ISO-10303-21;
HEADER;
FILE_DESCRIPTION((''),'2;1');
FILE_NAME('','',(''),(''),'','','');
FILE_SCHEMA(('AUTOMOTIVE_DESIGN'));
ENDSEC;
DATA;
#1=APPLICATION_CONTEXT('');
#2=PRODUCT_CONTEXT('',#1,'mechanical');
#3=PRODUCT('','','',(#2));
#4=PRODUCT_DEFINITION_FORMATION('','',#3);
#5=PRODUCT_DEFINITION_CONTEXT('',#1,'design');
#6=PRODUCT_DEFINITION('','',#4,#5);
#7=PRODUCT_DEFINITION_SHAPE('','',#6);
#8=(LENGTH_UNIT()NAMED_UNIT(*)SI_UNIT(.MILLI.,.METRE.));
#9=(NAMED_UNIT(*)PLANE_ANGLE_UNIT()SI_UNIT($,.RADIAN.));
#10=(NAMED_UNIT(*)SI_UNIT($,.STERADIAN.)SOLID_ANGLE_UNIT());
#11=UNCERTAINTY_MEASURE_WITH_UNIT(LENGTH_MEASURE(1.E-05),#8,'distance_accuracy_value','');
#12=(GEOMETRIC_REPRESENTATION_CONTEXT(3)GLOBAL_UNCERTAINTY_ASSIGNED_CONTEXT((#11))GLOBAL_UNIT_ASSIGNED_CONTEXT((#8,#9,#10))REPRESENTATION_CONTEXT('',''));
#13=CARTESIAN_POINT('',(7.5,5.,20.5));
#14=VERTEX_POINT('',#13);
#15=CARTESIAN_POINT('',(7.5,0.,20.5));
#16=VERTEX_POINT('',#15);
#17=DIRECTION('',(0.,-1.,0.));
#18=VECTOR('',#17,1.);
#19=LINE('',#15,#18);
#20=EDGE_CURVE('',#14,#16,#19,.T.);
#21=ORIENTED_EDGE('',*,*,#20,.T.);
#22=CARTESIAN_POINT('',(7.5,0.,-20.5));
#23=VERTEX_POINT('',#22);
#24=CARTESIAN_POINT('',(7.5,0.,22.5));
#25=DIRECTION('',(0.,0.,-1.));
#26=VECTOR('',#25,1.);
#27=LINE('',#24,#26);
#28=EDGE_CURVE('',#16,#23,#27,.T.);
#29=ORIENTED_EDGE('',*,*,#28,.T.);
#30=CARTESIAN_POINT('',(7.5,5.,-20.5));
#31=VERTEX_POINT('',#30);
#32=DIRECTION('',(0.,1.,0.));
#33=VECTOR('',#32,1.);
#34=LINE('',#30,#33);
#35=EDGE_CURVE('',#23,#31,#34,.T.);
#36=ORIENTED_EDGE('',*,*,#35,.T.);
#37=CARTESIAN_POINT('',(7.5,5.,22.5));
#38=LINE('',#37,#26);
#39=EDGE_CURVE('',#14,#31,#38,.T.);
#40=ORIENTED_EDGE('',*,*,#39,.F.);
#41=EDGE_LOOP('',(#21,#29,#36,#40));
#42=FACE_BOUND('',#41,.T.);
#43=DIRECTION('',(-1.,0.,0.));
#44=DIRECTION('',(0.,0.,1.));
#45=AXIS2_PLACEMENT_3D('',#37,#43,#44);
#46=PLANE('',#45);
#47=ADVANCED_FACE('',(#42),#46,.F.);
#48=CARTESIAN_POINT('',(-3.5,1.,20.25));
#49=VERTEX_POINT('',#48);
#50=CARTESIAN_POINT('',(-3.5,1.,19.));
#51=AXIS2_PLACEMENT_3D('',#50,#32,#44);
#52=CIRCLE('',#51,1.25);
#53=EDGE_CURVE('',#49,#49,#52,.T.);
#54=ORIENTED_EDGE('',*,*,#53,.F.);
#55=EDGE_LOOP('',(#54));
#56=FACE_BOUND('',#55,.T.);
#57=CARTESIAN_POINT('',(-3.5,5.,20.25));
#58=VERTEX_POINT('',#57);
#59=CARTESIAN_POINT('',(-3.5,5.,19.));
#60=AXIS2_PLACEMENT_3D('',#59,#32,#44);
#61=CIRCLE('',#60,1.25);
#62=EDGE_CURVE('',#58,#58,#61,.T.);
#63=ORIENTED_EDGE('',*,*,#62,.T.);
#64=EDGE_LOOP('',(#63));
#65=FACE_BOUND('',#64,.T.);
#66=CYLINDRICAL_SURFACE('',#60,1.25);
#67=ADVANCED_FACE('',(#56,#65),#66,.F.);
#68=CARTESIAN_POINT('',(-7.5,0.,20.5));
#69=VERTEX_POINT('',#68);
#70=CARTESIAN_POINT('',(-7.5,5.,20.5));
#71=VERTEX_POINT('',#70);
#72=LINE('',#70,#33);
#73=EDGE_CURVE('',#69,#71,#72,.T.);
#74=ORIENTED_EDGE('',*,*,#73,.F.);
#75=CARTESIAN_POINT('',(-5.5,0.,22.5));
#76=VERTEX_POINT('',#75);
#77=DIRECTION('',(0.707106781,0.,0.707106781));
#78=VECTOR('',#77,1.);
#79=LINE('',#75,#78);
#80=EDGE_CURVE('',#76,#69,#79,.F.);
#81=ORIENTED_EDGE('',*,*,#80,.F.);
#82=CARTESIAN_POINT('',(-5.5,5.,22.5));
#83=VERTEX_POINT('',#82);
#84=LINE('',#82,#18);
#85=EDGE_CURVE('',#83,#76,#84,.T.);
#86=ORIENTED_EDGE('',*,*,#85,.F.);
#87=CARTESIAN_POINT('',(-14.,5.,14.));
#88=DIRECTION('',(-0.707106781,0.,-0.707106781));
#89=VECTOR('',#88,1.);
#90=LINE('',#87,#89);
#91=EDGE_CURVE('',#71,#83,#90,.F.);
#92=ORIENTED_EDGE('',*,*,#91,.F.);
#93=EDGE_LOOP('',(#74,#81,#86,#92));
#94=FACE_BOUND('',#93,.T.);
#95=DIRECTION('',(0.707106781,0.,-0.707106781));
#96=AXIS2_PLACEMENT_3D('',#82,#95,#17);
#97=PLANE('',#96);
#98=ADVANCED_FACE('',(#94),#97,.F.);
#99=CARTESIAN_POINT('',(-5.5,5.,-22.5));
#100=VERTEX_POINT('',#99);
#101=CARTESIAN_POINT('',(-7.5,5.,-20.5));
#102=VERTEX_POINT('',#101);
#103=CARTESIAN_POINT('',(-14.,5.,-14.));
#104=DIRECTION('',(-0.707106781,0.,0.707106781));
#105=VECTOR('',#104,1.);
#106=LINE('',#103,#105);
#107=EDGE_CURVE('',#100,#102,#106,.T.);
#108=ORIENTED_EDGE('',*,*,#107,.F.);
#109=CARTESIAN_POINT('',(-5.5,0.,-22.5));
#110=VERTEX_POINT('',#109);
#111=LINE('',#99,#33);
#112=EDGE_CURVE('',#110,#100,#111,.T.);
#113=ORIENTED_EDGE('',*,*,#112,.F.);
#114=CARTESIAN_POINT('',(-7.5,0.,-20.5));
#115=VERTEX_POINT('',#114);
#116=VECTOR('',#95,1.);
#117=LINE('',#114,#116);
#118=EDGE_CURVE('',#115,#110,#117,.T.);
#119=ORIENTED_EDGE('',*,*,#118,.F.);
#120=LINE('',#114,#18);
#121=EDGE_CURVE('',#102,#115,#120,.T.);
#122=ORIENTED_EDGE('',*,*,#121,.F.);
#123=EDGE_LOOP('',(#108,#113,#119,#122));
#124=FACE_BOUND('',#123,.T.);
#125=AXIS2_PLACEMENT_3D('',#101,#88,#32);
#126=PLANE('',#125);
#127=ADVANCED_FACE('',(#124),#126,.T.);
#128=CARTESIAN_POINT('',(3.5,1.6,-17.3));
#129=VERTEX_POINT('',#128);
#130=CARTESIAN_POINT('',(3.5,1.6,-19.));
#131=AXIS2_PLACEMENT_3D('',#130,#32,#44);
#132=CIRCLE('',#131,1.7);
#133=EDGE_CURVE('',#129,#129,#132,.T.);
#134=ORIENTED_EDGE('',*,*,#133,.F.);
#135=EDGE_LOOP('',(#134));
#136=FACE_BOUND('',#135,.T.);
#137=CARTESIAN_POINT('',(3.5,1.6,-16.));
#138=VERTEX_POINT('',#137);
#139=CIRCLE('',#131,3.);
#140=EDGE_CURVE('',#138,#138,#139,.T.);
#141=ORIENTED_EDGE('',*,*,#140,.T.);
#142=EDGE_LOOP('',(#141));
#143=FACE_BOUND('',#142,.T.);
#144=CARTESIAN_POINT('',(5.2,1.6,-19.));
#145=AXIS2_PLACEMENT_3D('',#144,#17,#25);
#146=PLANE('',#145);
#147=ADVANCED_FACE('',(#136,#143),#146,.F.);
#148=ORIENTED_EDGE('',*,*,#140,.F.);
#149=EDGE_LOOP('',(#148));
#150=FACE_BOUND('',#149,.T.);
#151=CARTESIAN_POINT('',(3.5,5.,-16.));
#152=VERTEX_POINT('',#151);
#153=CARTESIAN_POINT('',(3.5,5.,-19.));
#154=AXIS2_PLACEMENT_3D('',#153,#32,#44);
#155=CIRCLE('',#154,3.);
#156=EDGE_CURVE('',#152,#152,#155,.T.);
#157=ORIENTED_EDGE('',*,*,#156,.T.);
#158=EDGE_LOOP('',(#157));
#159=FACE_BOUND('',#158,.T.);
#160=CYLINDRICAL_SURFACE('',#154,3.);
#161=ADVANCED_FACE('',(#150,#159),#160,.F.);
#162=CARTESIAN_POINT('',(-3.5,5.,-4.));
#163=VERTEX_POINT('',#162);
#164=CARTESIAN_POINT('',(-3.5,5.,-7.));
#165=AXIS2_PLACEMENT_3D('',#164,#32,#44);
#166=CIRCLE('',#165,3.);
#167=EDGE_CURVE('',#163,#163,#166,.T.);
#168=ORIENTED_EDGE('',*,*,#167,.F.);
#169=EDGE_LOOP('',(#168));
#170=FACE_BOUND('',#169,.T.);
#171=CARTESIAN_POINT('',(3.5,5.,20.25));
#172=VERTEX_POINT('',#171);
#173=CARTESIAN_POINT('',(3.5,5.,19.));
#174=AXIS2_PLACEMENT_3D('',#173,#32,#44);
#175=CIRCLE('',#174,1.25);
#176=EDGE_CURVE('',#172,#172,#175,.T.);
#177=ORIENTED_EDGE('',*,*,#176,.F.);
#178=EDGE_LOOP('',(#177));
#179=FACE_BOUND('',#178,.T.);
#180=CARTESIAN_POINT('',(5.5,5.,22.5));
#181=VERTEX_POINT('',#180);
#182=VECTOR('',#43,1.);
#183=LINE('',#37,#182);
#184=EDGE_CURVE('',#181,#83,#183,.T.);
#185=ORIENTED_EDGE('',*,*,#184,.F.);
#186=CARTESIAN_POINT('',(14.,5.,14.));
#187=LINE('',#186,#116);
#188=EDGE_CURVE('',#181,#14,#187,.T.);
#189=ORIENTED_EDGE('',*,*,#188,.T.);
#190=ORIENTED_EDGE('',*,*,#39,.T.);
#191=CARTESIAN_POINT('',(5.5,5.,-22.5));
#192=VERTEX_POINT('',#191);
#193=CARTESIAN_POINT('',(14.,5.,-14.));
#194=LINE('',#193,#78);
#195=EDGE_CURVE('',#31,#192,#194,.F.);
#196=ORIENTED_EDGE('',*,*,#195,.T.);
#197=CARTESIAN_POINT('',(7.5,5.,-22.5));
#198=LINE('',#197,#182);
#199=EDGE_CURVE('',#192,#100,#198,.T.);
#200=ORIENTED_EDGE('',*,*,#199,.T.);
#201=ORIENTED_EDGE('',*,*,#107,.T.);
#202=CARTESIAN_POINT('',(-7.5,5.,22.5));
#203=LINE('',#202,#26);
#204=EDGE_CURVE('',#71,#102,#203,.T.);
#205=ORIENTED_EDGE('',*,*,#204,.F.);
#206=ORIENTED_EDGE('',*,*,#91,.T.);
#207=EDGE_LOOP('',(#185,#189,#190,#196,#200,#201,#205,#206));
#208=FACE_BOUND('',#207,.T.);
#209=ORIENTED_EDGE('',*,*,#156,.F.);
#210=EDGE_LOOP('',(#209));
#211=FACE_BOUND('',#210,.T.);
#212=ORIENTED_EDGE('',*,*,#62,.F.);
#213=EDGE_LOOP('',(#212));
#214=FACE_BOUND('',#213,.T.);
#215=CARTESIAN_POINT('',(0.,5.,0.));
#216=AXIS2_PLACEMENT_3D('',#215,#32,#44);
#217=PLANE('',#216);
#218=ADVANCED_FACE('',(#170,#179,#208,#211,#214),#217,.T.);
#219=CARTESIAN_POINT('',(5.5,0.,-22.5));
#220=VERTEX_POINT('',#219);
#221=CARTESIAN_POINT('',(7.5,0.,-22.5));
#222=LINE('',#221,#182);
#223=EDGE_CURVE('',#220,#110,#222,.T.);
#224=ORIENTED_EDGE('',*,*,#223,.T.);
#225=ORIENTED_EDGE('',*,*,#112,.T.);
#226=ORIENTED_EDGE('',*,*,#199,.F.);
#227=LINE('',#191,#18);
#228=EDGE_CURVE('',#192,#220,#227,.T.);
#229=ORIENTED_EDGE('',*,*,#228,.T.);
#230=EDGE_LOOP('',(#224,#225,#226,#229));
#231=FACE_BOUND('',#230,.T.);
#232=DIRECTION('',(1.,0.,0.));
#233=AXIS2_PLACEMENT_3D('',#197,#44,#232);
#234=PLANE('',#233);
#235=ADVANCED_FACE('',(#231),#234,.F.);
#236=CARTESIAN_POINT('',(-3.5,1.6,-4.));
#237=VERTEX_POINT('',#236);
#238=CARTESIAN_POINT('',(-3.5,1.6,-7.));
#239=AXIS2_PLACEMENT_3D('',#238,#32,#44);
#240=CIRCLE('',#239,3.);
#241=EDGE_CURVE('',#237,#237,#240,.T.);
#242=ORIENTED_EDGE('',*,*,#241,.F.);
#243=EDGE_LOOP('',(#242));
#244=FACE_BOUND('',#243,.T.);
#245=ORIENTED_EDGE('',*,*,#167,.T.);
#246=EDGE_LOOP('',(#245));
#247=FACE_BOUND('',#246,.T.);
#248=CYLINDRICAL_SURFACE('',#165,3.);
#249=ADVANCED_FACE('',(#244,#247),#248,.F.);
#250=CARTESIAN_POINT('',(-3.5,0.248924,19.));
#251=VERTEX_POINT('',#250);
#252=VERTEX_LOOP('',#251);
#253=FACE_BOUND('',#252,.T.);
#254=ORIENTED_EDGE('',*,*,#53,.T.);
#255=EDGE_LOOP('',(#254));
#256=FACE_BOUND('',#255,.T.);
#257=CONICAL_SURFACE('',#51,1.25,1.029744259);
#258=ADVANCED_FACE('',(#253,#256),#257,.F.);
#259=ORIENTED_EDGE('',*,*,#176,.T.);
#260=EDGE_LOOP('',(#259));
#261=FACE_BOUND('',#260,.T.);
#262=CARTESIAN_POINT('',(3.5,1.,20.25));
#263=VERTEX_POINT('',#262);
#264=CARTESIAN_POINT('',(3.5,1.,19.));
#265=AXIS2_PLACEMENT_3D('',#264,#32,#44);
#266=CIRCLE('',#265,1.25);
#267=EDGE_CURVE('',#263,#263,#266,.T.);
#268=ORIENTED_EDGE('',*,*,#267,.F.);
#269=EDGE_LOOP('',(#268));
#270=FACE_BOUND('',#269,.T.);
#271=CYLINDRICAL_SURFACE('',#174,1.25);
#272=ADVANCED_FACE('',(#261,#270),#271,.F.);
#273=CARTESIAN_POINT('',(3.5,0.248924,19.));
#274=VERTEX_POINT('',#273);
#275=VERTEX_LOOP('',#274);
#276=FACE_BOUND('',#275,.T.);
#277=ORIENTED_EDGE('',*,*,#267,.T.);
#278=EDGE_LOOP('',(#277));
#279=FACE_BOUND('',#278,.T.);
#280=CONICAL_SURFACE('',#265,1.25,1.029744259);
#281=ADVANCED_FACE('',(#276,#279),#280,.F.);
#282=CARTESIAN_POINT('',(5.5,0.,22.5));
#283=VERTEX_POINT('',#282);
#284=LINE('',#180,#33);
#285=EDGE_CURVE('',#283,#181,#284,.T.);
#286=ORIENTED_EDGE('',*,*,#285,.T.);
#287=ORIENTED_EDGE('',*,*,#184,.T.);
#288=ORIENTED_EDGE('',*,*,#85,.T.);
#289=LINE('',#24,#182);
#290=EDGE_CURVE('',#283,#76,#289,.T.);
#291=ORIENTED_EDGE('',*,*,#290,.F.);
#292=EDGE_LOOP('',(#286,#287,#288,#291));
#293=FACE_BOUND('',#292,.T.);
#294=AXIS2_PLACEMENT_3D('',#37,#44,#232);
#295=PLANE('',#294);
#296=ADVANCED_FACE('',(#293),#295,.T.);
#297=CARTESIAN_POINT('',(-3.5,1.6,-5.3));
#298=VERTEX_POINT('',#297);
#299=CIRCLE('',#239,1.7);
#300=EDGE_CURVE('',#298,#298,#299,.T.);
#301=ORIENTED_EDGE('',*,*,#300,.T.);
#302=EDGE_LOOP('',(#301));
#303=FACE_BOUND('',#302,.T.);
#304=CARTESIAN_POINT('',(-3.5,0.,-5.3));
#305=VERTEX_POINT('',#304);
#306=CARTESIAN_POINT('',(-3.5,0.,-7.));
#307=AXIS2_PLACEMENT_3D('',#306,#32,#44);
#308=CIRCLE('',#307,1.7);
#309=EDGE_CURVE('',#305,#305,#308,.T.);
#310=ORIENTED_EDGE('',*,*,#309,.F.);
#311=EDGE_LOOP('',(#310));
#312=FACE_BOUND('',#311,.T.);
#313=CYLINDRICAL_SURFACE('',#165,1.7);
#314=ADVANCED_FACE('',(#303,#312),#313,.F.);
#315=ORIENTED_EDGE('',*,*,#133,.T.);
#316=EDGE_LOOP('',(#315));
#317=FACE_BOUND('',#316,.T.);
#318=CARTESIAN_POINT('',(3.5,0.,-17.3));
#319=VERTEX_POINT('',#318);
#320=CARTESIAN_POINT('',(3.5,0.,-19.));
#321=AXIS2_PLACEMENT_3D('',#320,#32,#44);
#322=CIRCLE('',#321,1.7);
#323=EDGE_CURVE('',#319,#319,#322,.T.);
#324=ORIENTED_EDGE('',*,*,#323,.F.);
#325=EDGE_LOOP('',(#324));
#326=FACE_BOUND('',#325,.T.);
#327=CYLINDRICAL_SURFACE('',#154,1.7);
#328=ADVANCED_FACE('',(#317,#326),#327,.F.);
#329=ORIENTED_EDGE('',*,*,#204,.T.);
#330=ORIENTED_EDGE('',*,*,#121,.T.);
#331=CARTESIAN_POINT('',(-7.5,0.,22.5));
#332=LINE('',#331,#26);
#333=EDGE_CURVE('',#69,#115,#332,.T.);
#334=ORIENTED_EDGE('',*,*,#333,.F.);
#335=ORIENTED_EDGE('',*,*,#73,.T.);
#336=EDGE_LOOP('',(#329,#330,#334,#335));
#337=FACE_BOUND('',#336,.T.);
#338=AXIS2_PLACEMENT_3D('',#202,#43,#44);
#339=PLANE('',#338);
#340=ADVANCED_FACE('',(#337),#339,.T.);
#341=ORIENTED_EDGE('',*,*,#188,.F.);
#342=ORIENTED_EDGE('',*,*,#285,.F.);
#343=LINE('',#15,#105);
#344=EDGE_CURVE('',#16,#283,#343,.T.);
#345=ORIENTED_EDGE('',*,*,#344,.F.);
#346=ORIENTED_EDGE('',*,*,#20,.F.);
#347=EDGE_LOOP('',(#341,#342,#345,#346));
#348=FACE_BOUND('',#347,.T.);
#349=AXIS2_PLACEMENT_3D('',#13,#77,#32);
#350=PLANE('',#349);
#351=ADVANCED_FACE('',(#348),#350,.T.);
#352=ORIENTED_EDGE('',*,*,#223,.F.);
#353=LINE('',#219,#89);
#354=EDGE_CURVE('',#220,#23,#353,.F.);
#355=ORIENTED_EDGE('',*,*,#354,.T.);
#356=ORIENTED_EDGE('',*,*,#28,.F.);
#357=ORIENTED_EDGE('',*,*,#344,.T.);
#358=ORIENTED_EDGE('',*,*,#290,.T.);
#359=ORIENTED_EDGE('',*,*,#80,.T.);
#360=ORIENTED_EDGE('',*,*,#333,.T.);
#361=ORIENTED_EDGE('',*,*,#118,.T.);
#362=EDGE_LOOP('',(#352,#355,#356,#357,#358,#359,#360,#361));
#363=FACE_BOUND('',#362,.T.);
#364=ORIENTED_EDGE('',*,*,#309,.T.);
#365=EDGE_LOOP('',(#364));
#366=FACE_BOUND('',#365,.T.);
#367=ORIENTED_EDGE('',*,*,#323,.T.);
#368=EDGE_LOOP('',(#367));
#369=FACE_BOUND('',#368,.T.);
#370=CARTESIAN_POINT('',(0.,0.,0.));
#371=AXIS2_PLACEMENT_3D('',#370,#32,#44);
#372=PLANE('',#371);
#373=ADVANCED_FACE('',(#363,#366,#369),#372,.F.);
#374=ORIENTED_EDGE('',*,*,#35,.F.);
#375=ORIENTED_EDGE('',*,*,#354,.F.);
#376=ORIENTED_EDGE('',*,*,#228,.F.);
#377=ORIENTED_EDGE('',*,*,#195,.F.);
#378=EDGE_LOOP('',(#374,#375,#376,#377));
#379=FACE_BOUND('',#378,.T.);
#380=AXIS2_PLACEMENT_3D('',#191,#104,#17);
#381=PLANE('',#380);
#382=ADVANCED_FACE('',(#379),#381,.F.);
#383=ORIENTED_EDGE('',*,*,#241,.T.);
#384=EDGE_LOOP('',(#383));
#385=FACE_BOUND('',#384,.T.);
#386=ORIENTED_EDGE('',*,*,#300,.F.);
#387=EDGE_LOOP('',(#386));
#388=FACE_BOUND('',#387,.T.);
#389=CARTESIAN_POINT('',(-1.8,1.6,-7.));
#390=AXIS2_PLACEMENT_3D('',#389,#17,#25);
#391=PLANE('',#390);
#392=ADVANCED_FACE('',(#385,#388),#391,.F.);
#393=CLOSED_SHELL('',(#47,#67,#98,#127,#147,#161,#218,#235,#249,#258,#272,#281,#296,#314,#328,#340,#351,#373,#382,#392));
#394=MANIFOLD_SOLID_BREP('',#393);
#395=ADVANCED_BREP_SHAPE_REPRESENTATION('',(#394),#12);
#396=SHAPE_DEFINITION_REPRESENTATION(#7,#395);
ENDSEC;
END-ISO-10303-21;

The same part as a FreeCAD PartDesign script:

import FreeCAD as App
import Part
import Sketcher
from FreeCAD import Vector
Q = App.Units.Quantity


def edges_at(feature, points):
    """Names of the edges that pass closest to the given points."""
    edges = feature.Shape.Edges
    near = lambda p: min(range(len(edges)), key=lambda i: edges[i].distToShape(Part.Vertex(*p))[0])
    return sorted({f"Edge{near(p) + 1}" for p in points})


def add_polygon(sketch, points):
    """Adds a closed chain of lines whose ends are joined by coincident constraints."""
    first, n = sketch.GeometryCount, len(points)
    for a, b in zip(points, points[1:] + points[:1]):
        sketch.addGeometry(Part.LineSegment(App.Vector(*a, 0), App.Vector(*b, 0)), False)
    for i in range(n):
        sketch.addConstraint(Sketcher.Constraint("Coincident", first + i, 2, first + (i + 1) % n, 1))

doc = App.newDocument("Part")
params = doc.addObject("Spreadsheet::Sheet", "Params")
for row, (alias, value) in enumerate([
    ("sketch1_width", "15 mm"),
    ("sketch1_height", "45 mm"),
    ("pad1_length", "5 mm"),
    ("sketch2_diameter", "2.5 mm"),
    ("hole_diameter", "2.5 mm"),
    ("hole_depth", "4 mm"),
    ("sketch3_diameter", "3.4 mm"),
    ("hole2_diameter", "3.4 mm"),
    ("hole2_cbore_diameter", "6 mm"),
    ("hole2_cbore_depth", "3.4 mm"),
    ("chamfer_size", "2 mm"),
], start=1):
    params.set(f"A{row}", alias)
    params.set(f"B{row}", "=" + value)
    params.setAlias(f"B{row}", alias)

body = doc.addObject("PartDesign::Body", "Body")

# Sketch on XZ plane
sketch1 = body.newObject("Sketcher::SketchObject", "Sketch")
sketch1.AttachmentSupport = (doc.getObject("XZ_Plane"), [""])
sketch1.MapMode = "FlatFace"
add_polygon(sketch1, [(-8, -22), (-8, 22), (8, 22), (8, -22)])  # lines 0-3
sketch1.addConstraint(Sketcher.Constraint("Vertical", 0))
sketch1.addConstraint(Sketcher.Constraint("Horizontal", 1))
sketch1.addConstraint(Sketcher.Constraint("Vertical", 2))
sketch1.addConstraint(Sketcher.Constraint("Horizontal", 3))
sketch1.addConstraint(Sketcher.Constraint("Symmetric", 0, 2, 2, 2, -1, 1))
sketch1.addConstraint(Sketcher.Constraint("DistanceX", 1, 1, 1, 2, Q("15 mm")))
sketch1.addConstraint(Sketcher.Constraint("DistanceY", 0, 1, 0, 2, Q("45 mm")))
sketch1.setExpression("Constraints[9]", "Params.sketch1_width")
sketch1.setExpression("Constraints[10]", "Params.sketch1_height")
pad1 = body.newObject("PartDesign::Pad", "Pad")
pad1.Profile = sketch1
pad1.setExpression("Length", "Params.pad1_length")
pad1.Reversed = True

# Sketch on XZ plane
sketch2 = body.newObject("Sketcher::SketchObject", "Sketch001")
sketch2.AttachmentSupport = (doc.getObject("XZ_Plane"), [""])
sketch2.MapMode = "FlatFace"
sketch2.AttachmentOffset = App.Placement(Vector(0, 0, -5), App.Rotation())
sketch2.addGeometry(Part.Circle(Vector(-3.5, 19, 0), Vector(0, 0, 1), 1.2), False)
sketch2.addGeometry(Part.Circle(Vector(3.5, 19, 0), Vector(0, 0, 1), 1.2), False)
sketch2.addConstraint(Sketcher.Constraint("Equal", 0, 1))
sketch2.addConstraint(Sketcher.Constraint("Symmetric", 0, 3, 1, 3, -2))
sketch2.addConstraint(Sketcher.Constraint("Diameter", 0, Q("2.5 mm")))
sketch2.addConstraint(Sketcher.Constraint("DistanceY", -1, 1, 0, 3, Q("19 mm")))
sketch2.addConstraint(Sketcher.Constraint("DistanceX", 0, 3, 1, 3, Q("7 mm")))
sketch2.setExpression("Constraints[2]", "Params.sketch2_diameter")
doc.recompute()
hole = body.newObject("PartDesign::Hole", "Hole")
hole.Profile = sketch2
hole.ThreadType = "None"
hole.setExpression("Diameter", "Params.hole_diameter")
hole.DepthType = "Dimension"
hole.setExpression("Depth", "Params.hole_depth")
hole.DrillPoint = "Angled"
hole.DrillPointAngle = 118
hole.Reversed = True

# Sketch on XZ plane
sketch3 = body.newObject("Sketcher::SketchObject", "Sketch002")
sketch3.AttachmentSupport = (doc.getObject("XZ_Plane"), [""])
sketch3.MapMode = "FlatFace"
sketch3.AttachmentOffset = App.Placement(Vector(0, 0, -5), App.Rotation())
sketch3.addGeometry(Part.Circle(Vector(3.5, -19, 0), Vector(0, 0, 1), 1.7), False)
sketch3.addGeometry(Part.Circle(Vector(-3.5, -7, 0), Vector(0, 0, 1), 1.7), False)
sketch3.addConstraint(Sketcher.Constraint("Equal", 0, 1))
sketch3.addConstraint(Sketcher.Constraint("Diameter", 0, Q("3.4 mm")))
sketch3.addConstraint(Sketcher.Constraint("DistanceY", 0, 3, -1, 1, Q("19 mm")))
sketch3.addConstraint(Sketcher.Constraint("DistanceY", 1, 3, -1, 1, Q("7 mm")))
sketch3.addConstraint(Sketcher.Constraint("DistanceX", 1, 3, 0, 3, Q("7 mm")))
sketch3.addConstraint(Sketcher.Constraint("DistanceX", -1, 1, 0, 3, Q("3.5 mm")))
sketch3.setExpression("Constraints[1]", "Params.sketch3_diameter")
doc.recompute()
hole2 = body.newObject("PartDesign::Hole", "Hole001")
hole2.Profile = sketch3
hole2.ThreadType = "None"
hole2.setExpression("Diameter", "Params.hole2_diameter")
hole2.DepthType = "ThroughAll"
hole2.HoleCutType = "Counterbore"
hole2.setExpression("HoleCutDiameter", "Params.hole2_cbore_diameter")
hole2.setExpression("HoleCutDepth", "Params.hole2_cbore_depth")
hole2.Reversed = True
doc.recompute()

chamfer = body.newObject("PartDesign::Chamfer", "Chamfer")
chamfer.Base = (hole2, edges_at(hole2, [
    (7.5, 2.5, 22.5),
    (-7.5, 2.5, 22.5),
    (-7.5, 2.5, -22.5),
    (7.5, 2.5, -22.5),
]))
chamfer.setExpression("Size", "Params.chamfer_size")

doc.recompute()
